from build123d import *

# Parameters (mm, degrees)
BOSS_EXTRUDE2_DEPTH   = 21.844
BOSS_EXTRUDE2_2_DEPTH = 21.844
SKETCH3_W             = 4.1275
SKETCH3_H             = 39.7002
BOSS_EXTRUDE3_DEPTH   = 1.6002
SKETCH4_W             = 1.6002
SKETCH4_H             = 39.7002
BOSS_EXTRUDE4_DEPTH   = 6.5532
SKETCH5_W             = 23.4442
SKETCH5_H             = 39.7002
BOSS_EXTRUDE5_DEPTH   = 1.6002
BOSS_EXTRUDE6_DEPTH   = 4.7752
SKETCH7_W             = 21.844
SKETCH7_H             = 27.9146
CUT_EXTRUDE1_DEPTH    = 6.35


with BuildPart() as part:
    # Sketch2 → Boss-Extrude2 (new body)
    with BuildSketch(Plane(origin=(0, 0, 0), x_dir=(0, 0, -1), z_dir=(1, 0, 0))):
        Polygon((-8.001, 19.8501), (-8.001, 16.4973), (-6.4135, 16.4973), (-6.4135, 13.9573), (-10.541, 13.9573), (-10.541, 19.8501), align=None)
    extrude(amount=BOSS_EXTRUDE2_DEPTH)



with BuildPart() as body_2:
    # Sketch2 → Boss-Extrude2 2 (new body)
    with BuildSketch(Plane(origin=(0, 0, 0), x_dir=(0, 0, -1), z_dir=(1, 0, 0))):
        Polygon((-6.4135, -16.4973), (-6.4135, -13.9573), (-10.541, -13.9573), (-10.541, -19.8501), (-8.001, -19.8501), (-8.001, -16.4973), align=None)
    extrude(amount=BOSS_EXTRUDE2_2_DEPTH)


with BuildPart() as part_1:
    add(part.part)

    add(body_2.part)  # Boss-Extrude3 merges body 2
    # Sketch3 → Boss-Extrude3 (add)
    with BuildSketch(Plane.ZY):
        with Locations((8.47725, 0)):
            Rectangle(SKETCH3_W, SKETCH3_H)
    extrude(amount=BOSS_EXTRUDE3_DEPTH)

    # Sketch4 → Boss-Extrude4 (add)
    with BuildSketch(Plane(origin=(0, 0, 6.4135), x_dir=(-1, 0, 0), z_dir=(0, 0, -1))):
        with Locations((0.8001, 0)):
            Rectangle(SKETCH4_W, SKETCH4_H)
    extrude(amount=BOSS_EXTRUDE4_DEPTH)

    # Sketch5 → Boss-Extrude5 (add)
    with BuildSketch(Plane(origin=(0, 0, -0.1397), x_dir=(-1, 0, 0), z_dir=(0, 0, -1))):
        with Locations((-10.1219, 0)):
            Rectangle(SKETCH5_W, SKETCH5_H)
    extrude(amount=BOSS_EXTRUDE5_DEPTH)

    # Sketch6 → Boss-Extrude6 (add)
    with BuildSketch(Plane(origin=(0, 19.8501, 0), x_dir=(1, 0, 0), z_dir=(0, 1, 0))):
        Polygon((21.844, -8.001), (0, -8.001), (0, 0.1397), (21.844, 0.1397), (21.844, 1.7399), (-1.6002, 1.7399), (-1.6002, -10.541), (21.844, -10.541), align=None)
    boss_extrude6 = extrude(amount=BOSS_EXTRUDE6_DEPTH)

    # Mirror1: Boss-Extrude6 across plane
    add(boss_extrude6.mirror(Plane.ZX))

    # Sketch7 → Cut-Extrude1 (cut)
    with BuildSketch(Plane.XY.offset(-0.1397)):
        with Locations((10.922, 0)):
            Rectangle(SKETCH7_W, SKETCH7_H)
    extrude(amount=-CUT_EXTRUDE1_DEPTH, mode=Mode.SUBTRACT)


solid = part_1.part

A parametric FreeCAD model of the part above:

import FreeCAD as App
import Part
import Sketcher
Q = App.Units.Quantity

doc = App.newDocument("Part")
params = doc.addObject("Spreadsheet::Sheet", "Params")
for row, (alias, value) in enumerate([
    ("sketch1_width", "0.1 in"),
    ("sketch1_width2", "0.132 in"),
    ("sketch1_height", "0.0625 in"),
    ("pad1_length", "0.86 in"),
    ("sketch2_width", "0.1 in"),
    ("sketch2_width2", "0.232 in"),
    ("sketch2_height", "0.0625 in"),
    ("pad2_length", "0.86 in"),
    ("sketch3_width", "1.563 in"),
    ("pad3_length", "0.063 in"),
    ("sketch4_width", "0.063 in"),
    ("sketch4_height", "1.563 in"),
    ("pad4_length", "0.258 in"),
    ("sketch5_width", "0.923 in"),
    ("sketch5_height", "1.563 in"),
    ("pad5_length", "0.063 in"),
    ("sketch6_height", "0.1 in"),
    ("sketch6_width", "0.86 in"),
    ("sketch6_width2", "0.923 in"),
    ("sketch6_height2", "0.063 in"),
    ("pad6_length", "0.188 in"),
    ("sketch7_width", "0.86 in"),
    ("sketch7_height", "1.099 in"),
    ("pocket1_length", "0.25 in"),
], start=1):
    params.set(f"A{row}", alias)
    params.set(f"B{row}", "=" + value)
    params.setAlias(f"B{row}", alias)

body = doc.addObject("PartDesign::Body", "Body")

# Sketch on YZ plane
sketch1 = body.newObject("Sketcher::SketchObject", "Sketch")
sketch1.AttachmentSupport = (doc.getObject("YZ_Plane"), [""])
sketch1.MapMode = "FlatFace"
sketch1.addGeometry(Part.LineSegment(App.Vector(16.5, 8, 0), App.Vector(19.9, 8, 0)), False)
sketch1.addGeometry(Part.LineSegment(App.Vector(19.9, 8, 0), App.Vector(19.9, 10.5, 0)), False)
sketch1.addGeometry(Part.LineSegment(App.Vector(19.9, 10.5, 0), App.Vector(14, 10.5, 0)), False)
sketch1.addGeometry(Part.LineSegment(App.Vector(14, 10.5, 0), App.Vector(14, 6.4, 0)), False)
sketch1.addGeometry(Part.LineSegment(App.Vector(14, 6.4, 0), App.Vector(16.5, 6.4, 0)), False)
sketch1.addGeometry(Part.LineSegment(App.Vector(16.5, 6.4, 0), App.Vector(16.5, 8, 0)), False)
sketch1.addConstraint(Sketcher.Constraint("Coincident", 0, 2, 1, 1))
sketch1.addConstraint(Sketcher.Constraint("Coincident", 1, 2, 2, 1))
sketch1.addConstraint(Sketcher.Constraint("Coincident", 2, 2, 3, 1))
sketch1.addConstraint(Sketcher.Constraint("Coincident", 3, 2, 4, 1))
sketch1.addConstraint(Sketcher.Constraint("Coincident", 4, 2, 5, 1))
sketch1.addConstraint(Sketcher.Constraint("Coincident", 5, 2, 0, 1))
sketch1.addConstraint(Sketcher.Constraint("Horizontal", 0))
sketch1.addConstraint(Sketcher.Constraint("Vertical", 1))
sketch1.addConstraint(Sketcher.Constraint("Horizontal", 2))
sketch1.addConstraint(Sketcher.Constraint("Vertical", 3))
sketch1.addConstraint(Sketcher.Constraint("Horizontal", 4))
sketch1.addConstraint(Sketcher.Constraint("Vertical", 5))
sketch1.addConstraint(Sketcher.Constraint("Equal", 4, 1))
sketch1.addConstraint(Sketcher.Constraint("DistanceX", 4, 1, 4, 2, Q("0.1 in")))
sketch1.addConstraint(Sketcher.Constraint("DistanceX", 0, 1, 0, 2, Q("0.132 in")))
sketch1.addConstraint(Sketcher.Constraint("DistanceY", 5, 1, 5, 2, Q("0.0625 in")))
sketch1.addConstraint(Sketcher.Constraint("DistanceY", -1, 1, 0, 2, Q("0.315 in")))
sketch1.addConstraint(Sketcher.Constraint("DistanceX", -1, 1, 0, 2, Q("0.7815 in")))
sketch1.setExpression("Constraints[13]", "Params.sketch1_width")
sketch1.setExpression("Constraints[14]", "Params.sketch1_width2")
sketch1.setExpression("Constraints[15]", "Params.sketch1_height")
pad1 = body.newObject("PartDesign::Pad", "Pad")
pad1.Profile = sketch1
pad1.setExpression("Length", "Params.pad1_length")
body2 = doc.addObject("PartDesign::Body", "Body001")

# Sketch on YZ plane
sketch2 = body2.newObject("Sketcher::SketchObject", "Sketch001")
sketch2.AttachmentSupport = (doc.getObject("YZ_Plane001"), [""])
sketch2.MapMode = "FlatFace"
sketch2.addGeometry(Part.LineSegment(App.Vector(-16.5, 6.4, 0), App.Vector(-14, 6.4, 0)), False)
sketch2.addGeometry(Part.LineSegment(App.Vector(-14, 6.4, 0), App.Vector(-14, 10.5, 0)), False)
sketch2.addGeometry(Part.LineSegment(App.Vector(-14, 10.5, 0), App.Vector(-19.9, 10.5, 0)), False)
sketch2.addGeometry(Part.LineSegment(App.Vector(-19.9, 10.5, 0), App.Vector(-19.9, 8, 0)), False)
sketch2.addGeometry(Part.LineSegment(App.Vector(-19.9, 8, 0), App.Vector(-16.5, 8, 0)), False)
sketch2.addGeometry(Part.LineSegment(App.Vector(-16.5, 8, 0), App.Vector(-16.5, 6.4, 0)), False)
sketch2.addConstraint(Sketcher.Constraint("Coincident", 0, 2, 1, 1))
sketch2.addConstraint(Sketcher.Constraint("Coincident", 1, 2, 2, 1))
sketch2.addConstraint(Sketcher.Constraint("Coincident", 2, 2, 3, 1))
sketch2.addConstraint(Sketcher.Constraint("Coincident", 3, 2, 4, 1))
sketch2.addConstraint(Sketcher.Constraint("Coincident", 4, 2, 5, 1))
sketch2.addConstraint(Sketcher.Constraint("Coincident", 5, 2, 0, 1))
sketch2.addConstraint(Sketcher.Constraint("Horizontal", 0))
sketch2.addConstraint(Sketcher.Constraint("Vertical", 1))
sketch2.addConstraint(Sketcher.Constraint("Horizontal", 2))
sketch2.addConstraint(Sketcher.Constraint("Vertical", 3))
sketch2.addConstraint(Sketcher.Constraint("Horizontal", 4))
sketch2.addConstraint(Sketcher.Constraint("Vertical", 5))
sketch2.addConstraint(Sketcher.Constraint("Equal", 0, 3))
sketch2.addConstraint(Sketcher.Constraint("DistanceX", 0, 1, 0, 2, Q("0.1 in")))
sketch2.addConstraint(Sketcher.Constraint("DistanceX", 2, 2, 2, 1, Q("0.232 in")))
sketch2.addConstraint(Sketcher.Constraint("DistanceY", 5, 2, 5, 1, Q("0.0625 in")))
sketch2.addConstraint(Sketcher.Constraint("DistanceY", -1, 1, 1, 2, Q("0.415 in")))
sketch2.addConstraint(Sketcher.Constraint("DistanceX", 0, 2, -1, 1, Q("0.5495 in")))
sketch2.setExpression("Constraints[13]", "Params.sketch2_width")
sketch2.setExpression("Constraints[14]", "Params.sketch2_width2")
sketch2.setExpression("Constraints[15]", "Params.sketch2_height")
pad2 = body2.newObject("PartDesign::Pad", "Pad001")
pad2.Profile = sketch2
pad2.setExpression("Length", "Params.pad2_length")
body.AllowCompound = True
doc.recompute()

boolean = body.newObject("PartDesign::Boolean", "Boolean")
boolean.Type = "Fuse"
boolean.addObjects([body2])

# Sketch on YZ plane
sketch3 = body.newObject("Sketcher::SketchObject", "Sketch002")
sketch3.AttachmentSupport = (doc.getObject("YZ_Plane"), [""])
sketch3.MapMode = "FlatFace"
sketch3.addGeometry(Part.LineSegment(App.Vector(19.9, 6.4, 0), App.Vector(-19.9, 6.4, 0)), False)
sketch3.addGeometry(Part.LineSegment(App.Vector(-19.9, 6.4, 0), App.Vector(-19.9, 10.5, 0)), False)
sketch3.addGeometry(Part.LineSegment(App.Vector(-19.9, 10.5, 0), App.Vector(19.9, 10.5, 0)), False)
sketch3.addGeometry(Part.LineSegment(App.Vector(19.9, 10.5, 0), App.Vector(19.9, 6.4, 0)), False)
sketch3.addConstraint(Sketcher.Constraint("Coincident", 0, 2, 1, 1))
sketch3.addConstraint(Sketcher.Constraint("Coincident", 1, 2, 2, 1))
sketch3.addConstraint(Sketcher.Constraint("Coincident", 2, 2, 3, 1))
sketch3.addConstraint(Sketcher.Constraint("Coincident", 3, 2, 0, 1))
sketch3.addConstraint(Sketcher.Constraint("Horizontal", 0))
sketch3.addConstraint(Sketcher.Constraint("Vertical", 1))
sketch3.addConstraint(Sketcher.Constraint("Horizontal", 2))
sketch3.addConstraint(Sketcher.Constraint("Vertical", 3))
sketch3.addConstraint(Sketcher.Constraint("DistanceX", 0, 2, 0, 1, Q("1.563 in")))
sketch3.addConstraint(Sketcher.Constraint("DistanceY", 1, 1, 1, 2, Q("0.1625 in")))
sketch3.addConstraint(Sketcher.Constraint("DistanceY", -1, 1, 1, 2, Q("0.415 in")))
sketch3.addConstraint(Sketcher.Constraint("DistanceX", 0, 2, -1, 1, Q("0.7815 in")))
sketch3.setExpression("Constraints[8]", "Params.sketch3_width")
pad3 = body.newObject("PartDesign::Pad", "Pad002")
pad3.Profile = sketch3
pad3.setExpression("Length", "Params.pad3_length")
pad3.Reversed = True

# Sketch on XY plane
sketch4 = body.newObject("Sketcher::SketchObject", "Sketch003")
sketch4.AttachmentSupport = (doc.getObject("XY_Plane"), [""])
sketch4.MapMode = "FlatFace"
sketch4.AttachmentOffset = App.Placement(App.Vector(0, 0, 0.2525 * 25.4), App.Rotation())
sketch4.addGeometry(Part.LineSegment(App.Vector(0, 19.9, 0), App.Vector(0, -19.9, 0)), False)
sketch4.addGeometry(Part.LineSegment(App.Vector(0, -19.9, 0), App.Vector(-1.6, -19.9, 0)), False)
sketch4.addGeometry(Part.LineSegment(App.Vector(-1.6, -19.9, 0), App.Vector(-1.6, 19.9, 0)), False)
sketch4.addGeometry(Part.LineSegment(App.Vector(-1.6, 19.9, 0), App.Vector(0, 19.9, 0)), False)
sketch4.addConstraint(Sketcher.Constraint("Coincident", 0, 2, 1, 1))
sketch4.addConstraint(Sketcher.Constraint("Coincident", 1, 2, 2, 1))
sketch4.addConstraint(Sketcher.Constraint("Coincident", 2, 2, 3, 1))
sketch4.addConstraint(Sketcher.Constraint("Coincident", 3, 2, 0, 1))
sketch4.addConstraint(Sketcher.Constraint("Vertical", 0))
sketch4.addConstraint(Sketcher.Constraint("Horizontal", 1))
sketch4.addConstraint(Sketcher.Constraint("Vertical", 2))
sketch4.addConstraint(Sketcher.Constraint("Horizontal", 3))
sketch4.addConstraint(Sketcher.Constraint("Symmetric", 0, 2, 3, 2, -1, 1))
sketch4.addConstraint(Sketcher.Constraint("DistanceX", 1, 2, 1, 1, Q("0.063 in")))
sketch4.addConstraint(Sketcher.Constraint("DistanceY", 0, 2, 0, 1, Q("1.563 in")))
sketch4.setExpression("Constraints[9]", "Params.sketch4_width")
sketch4.setExpression("Constraints[10]", "Params.sketch4_height")
pad4 = body.newObject("PartDesign::Pad", "Pad003")
pad4.Profile = sketch4
pad4.setExpression("Length", "Params.pad4_length")
pad4.Reversed = True

# Sketch on XY plane
sketch5 = body.newObject("Sketcher::SketchObject", "Sketch004")
sketch5.AttachmentSupport = (doc.getObject("XY_Plane"), [""])
sketch5.MapMode = "FlatFace"
sketch5.AttachmentOffset = App.Placement(App.Vector(0, 0, -0.0055 * 25.4), App.Rotation())
sketch5.addGeometry(Part.LineSegment(App.Vector(22, 20, 0), App.Vector(22, -20, 0)), False)
sketch5.addGeometry(Part.LineSegment(App.Vector(22, -20, 0), App.Vector(-2, -20, 0)), False)
sketch5.addGeometry(Part.LineSegment(App.Vector(-2, -20, 0), App.Vector(-2, 20, 0)), False)
sketch5.addGeometry(Part.LineSegment(App.Vector(-2, 20, 0), App.Vector(22, 20, 0)), False)
sketch5.addConstraint(Sketcher.Constraint("Coincident", 0, 2, 1, 1))
sketch5.addConstraint(Sketcher.Constraint("Coincident", 1, 2, 2, 1))
sketch5.addConstraint(Sketcher.Constraint("Coincident", 2, 2, 3, 1))
sketch5.addConstraint(Sketcher.Constraint("Coincident", 3, 2, 0, 1))
sketch5.addConstraint(Sketcher.Constraint("Vertical", 0))
sketch5.addConstraint(Sketcher.Constraint("Horizontal", 1))
sketch5.addConstraint(Sketcher.Constraint("Vertical", 2))
sketch5.addConstraint(Sketcher.Constraint("Horizontal", 3))
sketch5.addConstraint(Sketcher.Constraint("DistanceX", 1, 2, 1, 1, Q("0.923 in")))
sketch5.addConstraint(Sketcher.Constraint("DistanceY", 0, 2, 0, 1, Q("1.563 in")))
sketch5.addConstraint(Sketcher.Constraint("DistanceX", -1, 1, 0, 2, Q("0.86 in")))
sketch5.addConstraint(Sketcher.Constraint("DistanceY", 0, 2, -1, 1, Q("0.7815 in")))
sketch5.setExpression("Constraints[8]", "Params.sketch5_width")
sketch5.setExpression("Constraints[9]", "Params.sketch5_height")
pad5 = body.newObject("PartDesign::Pad", "Pad004")
pad5.Profile = sketch5
pad5.setExpression("Length", "Params.pad5_length")
pad5.Reversed = True

# Sketch on XZ plane
sketch6 = body.newObject("Sketcher::SketchObject", "Sketch005")
sketch6.AttachmentSupport = (doc.getObject("XZ_Plane"), [""])
sketch6.MapMode = "FlatFace"
sketch6.AttachmentOffset = App.Placement(App.Vector(0, 0, -0.7815 * 25.4), App.Rotation())
sketch6.addGeometry(Part.LineSegment(App.Vector(21.8, 8, 0), App.Vector(0, 8, 0)), False)
sketch6.addGeometry(Part.LineSegment(App.Vector(0, 8, 0), App.Vector(0, -0.1, 0)), False)
sketch6.addGeometry(Part.LineSegment(App.Vector(0, -0.1, 0), App.Vector(21.8, -0.1, 0)), False)
sketch6.addGeometry(Part.LineSegment(App.Vector(21.8, -0.1, 0), App.Vector(21.8, -1.7, 0)), False)
sketch6.addGeometry(Part.LineSegment(App.Vector(21.8, -1.7, 0), App.Vector(-1.6, -1.7, 0)), False)
sketch6.addGeometry(Part.LineSegment(App.Vector(-1.6, -1.7, 0), App.Vector(-1.6, 10.5, 0)), False)
sketch6.addGeometry(Part.LineSegment(App.Vector(-1.6, 10.5, 0), App.Vector(21.8, 10.5, 0)), False)
sketch6.addGeometry(Part.LineSegment(App.Vector(21.8, 10.5, 0), App.Vector(21.8, 8, 0)), False)
sketch6.addConstraint(Sketcher.Constraint("Coincident", 0, 2, 1, 1))
sketch6.addConstraint(Sketcher.Constraint("Coincident", 1, 2, 2, 1))
sketch6.addConstraint(Sketcher.Constraint("Coincident", 2, 2, 3, 1))
sketch6.addConstraint(Sketcher.Constraint("Coincident", 3, 2, 4, 1))
sketch6.addConstraint(Sketcher.Constraint("Coincident", 4, 2, 5, 1))
sketch6.addConstraint(Sketcher.Constraint("Coincident", 5, 2, 6, 1))
sketch6.addConstraint(Sketcher.Constraint("Coincident", 6, 2, 7, 1))
sketch6.addConstraint(Sketcher.Constraint("Coincident", 7, 2, 0, 1))
sketch6.addConstraint(Sketcher.Constraint("Horizontal", 0))
sketch6.addConstraint(Sketcher.Constraint("Vertical", 1))
sketch6.addConstraint(Sketcher.Constraint("Horizontal", 2))
sketch6.addConstraint(Sketcher.Constraint("Vertical", 3))
sketch6.addConstraint(Sketcher.Constraint("Horizontal", 4))
sketch6.addConstraint(Sketcher.Constraint("Vertical", 5))
sketch6.addConstraint(Sketcher.Constraint("Horizontal", 6))
sketch6.addConstraint(Sketcher.Constraint("Vertical", 7))
sketch6.addConstraint(Sketcher.Constraint("PointOnObject", 0, 2, -2))
sketch6.addConstraint(Sketcher.Constraint("Vertical", 3, 2, 6, 2))
sketch6.addConstraint(Sketcher.Constraint("DistanceY", 7, 2, 7, 1, Q("0.1 in")))
sketch6.addConstraint(Sketcher.Constraint("DistanceX", 0, 2, 0, 1, Q("0.86 in")))
sketch6.addConstraint(Sketcher.Constraint("DistanceX", 4, 2, 4, 1, Q("0.923 in")))
sketch6.addConstraint(Sketcher.Constraint("DistanceY", 3, 2, 3, 1, Q("0.063 in")))
sketch6.addConstraint(Sketcher.Constraint("DistanceY", 1, 2, 1, 1, Q("0.3205 in")))
sketch6.addConstraint(Sketcher.Constraint("DistanceY", -1, 1, 0, 2, Q("0.315 in")))
sketch6.setExpression("Constraints[18]", "Params.sketch6_height")
sketch6.setExpression("Constraints[19]", "Params.sketch6_width")
sketch6.setExpression("Constraints[20]", "Params.sketch6_width2")
sketch6.setExpression("Constraints[21]", "Params.sketch6_height2")
pad6 = body.newObject("PartDesign::Pad", "Pad005")
pad6.Profile = sketch6
pad6.setExpression("Length", "Params.pad6_length")
pad6.Reversed = True
doc.recompute()

mirrored = body.newObject("PartDesign::Mirrored", "Mirrored")
mirrored.Originals = [pad6]
mirrored.MirrorPlane = (doc.getObject("XZ_Plane"), [""])
body.Tip = mirrored

# Sketch on XY plane
sketch7 = body.newObject("Sketcher::SketchObject", "Sketch006")
sketch7.AttachmentSupport = (doc.getObject("XY_Plane"), [""])
sketch7.MapMode = "FlatFace"
sketch7.AttachmentOffset = App.Placement(App.Vector(0, 0, -0.0055 * 25.4), App.Rotation())
sketch7.addGeometry(Part.LineSegment(App.Vector(0, 14, 0), App.Vector(0, -14, 0)), False)
sketch7.addGeometry(Part.LineSegment(App.Vector(0, -14, 0), App.Vector(22, -14, 0)), False)
sketch7.addGeometry(Part.LineSegment(App.Vector(22, -14, 0), App.Vector(22, 14, 0)), False)
sketch7.addGeometry(Part.LineSegment(App.Vector(22, 14, 0), App.Vector(0, 14, 0)), False)
sketch7.addConstraint(Sketcher.Constraint("Coincident", 0, 2, 1, 1))
sketch7.addConstraint(Sketcher.Constraint("Coincident", 1, 2, 2, 1))
sketch7.addConstraint(Sketcher.Constraint("Coincident", 2, 2, 3, 1))
sketch7.addConstraint(Sketcher.Constraint("Coincident", 3, 2, 0, 1))
sketch7.addConstraint(Sketcher.Constraint("Vertical", 0))
sketch7.addConstraint(Sketcher.Constraint("Horizontal", 1))
sketch7.addConstraint(Sketcher.Constraint("Vertical", 2))
sketch7.addConstraint(Sketcher.Constraint("Horizontal", 3))
sketch7.addConstraint(Sketcher.Constraint("Symmetric", 0, 2, 3, 2, -1, 1))
sketch7.addConstraint(Sketcher.Constraint("DistanceX", 1, 1, 1, 2, Q("0.86 in")))
sketch7.addConstraint(Sketcher.Constraint("DistanceY", 0, 2, 0, 1, Q("1.099 in")))
sketch7.setExpression("Constraints[9]", "Params.sketch7_width")
sketch7.setExpression("Constraints[10]", "Params.sketch7_height")
pocket1 = body.newObject("PartDesign::Pocket", "Pocket")
pocket1.Profile = sketch7
pocket1.setExpression("Length", "Params.pocket1_length")

doc.recompute()
